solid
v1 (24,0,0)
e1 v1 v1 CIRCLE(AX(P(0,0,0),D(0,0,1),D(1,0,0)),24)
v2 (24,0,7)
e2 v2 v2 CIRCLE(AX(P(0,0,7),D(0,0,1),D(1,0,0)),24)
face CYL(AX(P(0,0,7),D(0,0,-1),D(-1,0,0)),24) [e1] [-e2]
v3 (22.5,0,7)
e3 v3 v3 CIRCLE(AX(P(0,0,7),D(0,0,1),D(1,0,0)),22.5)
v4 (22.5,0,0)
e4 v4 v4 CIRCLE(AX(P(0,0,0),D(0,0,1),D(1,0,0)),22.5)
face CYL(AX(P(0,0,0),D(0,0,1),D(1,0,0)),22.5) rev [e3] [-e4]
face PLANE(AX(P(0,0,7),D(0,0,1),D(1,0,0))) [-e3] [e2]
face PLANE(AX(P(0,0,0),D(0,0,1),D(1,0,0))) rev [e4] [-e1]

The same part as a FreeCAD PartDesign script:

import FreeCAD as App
import Part
import Sketcher

V = App.Vector

doc = App.newDocument("Part")
params = doc.addObject("Spreadsheet::Sheet", "Params")
for row, (alias, value) in enumerate([
    ("sketch1_diameter", "48 mm"),
    ("pad1_length", "7 mm"),
    ("sketch2_diameter", "45 mm"),
    ("pocket1_length", "7 mm"),
], start=1):
    params.set(f"A{row}", alias)
    params.set(f"B{row}", "=" + value)
    params.setAlias(f"B{row}", alias)

body = doc.addObject("PartDesign::Body", "Body")

# Sketch on XY plane
sketch1 = doc.addObject("Sketcher::SketchObject", "Sketch")
body.addObject(sketch1)
sketch1.AttachmentSupport = (doc.XY_Plane, [""])
sketch1.MapMode = "FlatFace"
sketch1.addGeometry(Part.Circle(V(0, 0, 0), V(0, 0, 1), 24), False)
sketch1.addConstraint(Sketcher.Constraint("Coincident", 0, 3, -1, 1))
sketch1.addConstraint(Sketcher.Constraint("Diameter", 0, 48.0))
sketch1.setExpression("Constraints[1]", "Params.sketch1_diameter")
pad1 = doc.addObject("PartDesign::Pad", "Pad")
body.addObject(pad1)
pad1.Profile = sketch1
pad1.setExpression("Length", "Params.pad1_length")

# Sketch on XY plane
sketch2 = doc.addObject("Sketcher::SketchObject", "Sketch001")
body.addObject(sketch2)
sketch2.AttachmentSupport = (doc.XY_Plane, [""])
sketch2.MapMode = "FlatFace"
sketch2.AttachmentOffset = App.Placement(V(0, 0, 7), App.Rotation())
sketch2.addGeometry(Part.Circle(V(0, 0, 0), V(0, 0, 1), 22), False)
sketch2.addConstraint(Sketcher.Constraint("Coincident", 0, 3, -1, 1))
sketch2.addConstraint(Sketcher.Constraint("Diameter", 0, 45.0))
sketch2.setExpression("Constraints[1]", "Params.sketch2_diameter")
pocket1 = doc.addObject("PartDesign::Pocket", "Pocket")
body.addObject(pocket1)
pocket1.Profile = sketch2
pocket1.setExpression("Length", "Params.pocket1_length")

doc.recompute()
